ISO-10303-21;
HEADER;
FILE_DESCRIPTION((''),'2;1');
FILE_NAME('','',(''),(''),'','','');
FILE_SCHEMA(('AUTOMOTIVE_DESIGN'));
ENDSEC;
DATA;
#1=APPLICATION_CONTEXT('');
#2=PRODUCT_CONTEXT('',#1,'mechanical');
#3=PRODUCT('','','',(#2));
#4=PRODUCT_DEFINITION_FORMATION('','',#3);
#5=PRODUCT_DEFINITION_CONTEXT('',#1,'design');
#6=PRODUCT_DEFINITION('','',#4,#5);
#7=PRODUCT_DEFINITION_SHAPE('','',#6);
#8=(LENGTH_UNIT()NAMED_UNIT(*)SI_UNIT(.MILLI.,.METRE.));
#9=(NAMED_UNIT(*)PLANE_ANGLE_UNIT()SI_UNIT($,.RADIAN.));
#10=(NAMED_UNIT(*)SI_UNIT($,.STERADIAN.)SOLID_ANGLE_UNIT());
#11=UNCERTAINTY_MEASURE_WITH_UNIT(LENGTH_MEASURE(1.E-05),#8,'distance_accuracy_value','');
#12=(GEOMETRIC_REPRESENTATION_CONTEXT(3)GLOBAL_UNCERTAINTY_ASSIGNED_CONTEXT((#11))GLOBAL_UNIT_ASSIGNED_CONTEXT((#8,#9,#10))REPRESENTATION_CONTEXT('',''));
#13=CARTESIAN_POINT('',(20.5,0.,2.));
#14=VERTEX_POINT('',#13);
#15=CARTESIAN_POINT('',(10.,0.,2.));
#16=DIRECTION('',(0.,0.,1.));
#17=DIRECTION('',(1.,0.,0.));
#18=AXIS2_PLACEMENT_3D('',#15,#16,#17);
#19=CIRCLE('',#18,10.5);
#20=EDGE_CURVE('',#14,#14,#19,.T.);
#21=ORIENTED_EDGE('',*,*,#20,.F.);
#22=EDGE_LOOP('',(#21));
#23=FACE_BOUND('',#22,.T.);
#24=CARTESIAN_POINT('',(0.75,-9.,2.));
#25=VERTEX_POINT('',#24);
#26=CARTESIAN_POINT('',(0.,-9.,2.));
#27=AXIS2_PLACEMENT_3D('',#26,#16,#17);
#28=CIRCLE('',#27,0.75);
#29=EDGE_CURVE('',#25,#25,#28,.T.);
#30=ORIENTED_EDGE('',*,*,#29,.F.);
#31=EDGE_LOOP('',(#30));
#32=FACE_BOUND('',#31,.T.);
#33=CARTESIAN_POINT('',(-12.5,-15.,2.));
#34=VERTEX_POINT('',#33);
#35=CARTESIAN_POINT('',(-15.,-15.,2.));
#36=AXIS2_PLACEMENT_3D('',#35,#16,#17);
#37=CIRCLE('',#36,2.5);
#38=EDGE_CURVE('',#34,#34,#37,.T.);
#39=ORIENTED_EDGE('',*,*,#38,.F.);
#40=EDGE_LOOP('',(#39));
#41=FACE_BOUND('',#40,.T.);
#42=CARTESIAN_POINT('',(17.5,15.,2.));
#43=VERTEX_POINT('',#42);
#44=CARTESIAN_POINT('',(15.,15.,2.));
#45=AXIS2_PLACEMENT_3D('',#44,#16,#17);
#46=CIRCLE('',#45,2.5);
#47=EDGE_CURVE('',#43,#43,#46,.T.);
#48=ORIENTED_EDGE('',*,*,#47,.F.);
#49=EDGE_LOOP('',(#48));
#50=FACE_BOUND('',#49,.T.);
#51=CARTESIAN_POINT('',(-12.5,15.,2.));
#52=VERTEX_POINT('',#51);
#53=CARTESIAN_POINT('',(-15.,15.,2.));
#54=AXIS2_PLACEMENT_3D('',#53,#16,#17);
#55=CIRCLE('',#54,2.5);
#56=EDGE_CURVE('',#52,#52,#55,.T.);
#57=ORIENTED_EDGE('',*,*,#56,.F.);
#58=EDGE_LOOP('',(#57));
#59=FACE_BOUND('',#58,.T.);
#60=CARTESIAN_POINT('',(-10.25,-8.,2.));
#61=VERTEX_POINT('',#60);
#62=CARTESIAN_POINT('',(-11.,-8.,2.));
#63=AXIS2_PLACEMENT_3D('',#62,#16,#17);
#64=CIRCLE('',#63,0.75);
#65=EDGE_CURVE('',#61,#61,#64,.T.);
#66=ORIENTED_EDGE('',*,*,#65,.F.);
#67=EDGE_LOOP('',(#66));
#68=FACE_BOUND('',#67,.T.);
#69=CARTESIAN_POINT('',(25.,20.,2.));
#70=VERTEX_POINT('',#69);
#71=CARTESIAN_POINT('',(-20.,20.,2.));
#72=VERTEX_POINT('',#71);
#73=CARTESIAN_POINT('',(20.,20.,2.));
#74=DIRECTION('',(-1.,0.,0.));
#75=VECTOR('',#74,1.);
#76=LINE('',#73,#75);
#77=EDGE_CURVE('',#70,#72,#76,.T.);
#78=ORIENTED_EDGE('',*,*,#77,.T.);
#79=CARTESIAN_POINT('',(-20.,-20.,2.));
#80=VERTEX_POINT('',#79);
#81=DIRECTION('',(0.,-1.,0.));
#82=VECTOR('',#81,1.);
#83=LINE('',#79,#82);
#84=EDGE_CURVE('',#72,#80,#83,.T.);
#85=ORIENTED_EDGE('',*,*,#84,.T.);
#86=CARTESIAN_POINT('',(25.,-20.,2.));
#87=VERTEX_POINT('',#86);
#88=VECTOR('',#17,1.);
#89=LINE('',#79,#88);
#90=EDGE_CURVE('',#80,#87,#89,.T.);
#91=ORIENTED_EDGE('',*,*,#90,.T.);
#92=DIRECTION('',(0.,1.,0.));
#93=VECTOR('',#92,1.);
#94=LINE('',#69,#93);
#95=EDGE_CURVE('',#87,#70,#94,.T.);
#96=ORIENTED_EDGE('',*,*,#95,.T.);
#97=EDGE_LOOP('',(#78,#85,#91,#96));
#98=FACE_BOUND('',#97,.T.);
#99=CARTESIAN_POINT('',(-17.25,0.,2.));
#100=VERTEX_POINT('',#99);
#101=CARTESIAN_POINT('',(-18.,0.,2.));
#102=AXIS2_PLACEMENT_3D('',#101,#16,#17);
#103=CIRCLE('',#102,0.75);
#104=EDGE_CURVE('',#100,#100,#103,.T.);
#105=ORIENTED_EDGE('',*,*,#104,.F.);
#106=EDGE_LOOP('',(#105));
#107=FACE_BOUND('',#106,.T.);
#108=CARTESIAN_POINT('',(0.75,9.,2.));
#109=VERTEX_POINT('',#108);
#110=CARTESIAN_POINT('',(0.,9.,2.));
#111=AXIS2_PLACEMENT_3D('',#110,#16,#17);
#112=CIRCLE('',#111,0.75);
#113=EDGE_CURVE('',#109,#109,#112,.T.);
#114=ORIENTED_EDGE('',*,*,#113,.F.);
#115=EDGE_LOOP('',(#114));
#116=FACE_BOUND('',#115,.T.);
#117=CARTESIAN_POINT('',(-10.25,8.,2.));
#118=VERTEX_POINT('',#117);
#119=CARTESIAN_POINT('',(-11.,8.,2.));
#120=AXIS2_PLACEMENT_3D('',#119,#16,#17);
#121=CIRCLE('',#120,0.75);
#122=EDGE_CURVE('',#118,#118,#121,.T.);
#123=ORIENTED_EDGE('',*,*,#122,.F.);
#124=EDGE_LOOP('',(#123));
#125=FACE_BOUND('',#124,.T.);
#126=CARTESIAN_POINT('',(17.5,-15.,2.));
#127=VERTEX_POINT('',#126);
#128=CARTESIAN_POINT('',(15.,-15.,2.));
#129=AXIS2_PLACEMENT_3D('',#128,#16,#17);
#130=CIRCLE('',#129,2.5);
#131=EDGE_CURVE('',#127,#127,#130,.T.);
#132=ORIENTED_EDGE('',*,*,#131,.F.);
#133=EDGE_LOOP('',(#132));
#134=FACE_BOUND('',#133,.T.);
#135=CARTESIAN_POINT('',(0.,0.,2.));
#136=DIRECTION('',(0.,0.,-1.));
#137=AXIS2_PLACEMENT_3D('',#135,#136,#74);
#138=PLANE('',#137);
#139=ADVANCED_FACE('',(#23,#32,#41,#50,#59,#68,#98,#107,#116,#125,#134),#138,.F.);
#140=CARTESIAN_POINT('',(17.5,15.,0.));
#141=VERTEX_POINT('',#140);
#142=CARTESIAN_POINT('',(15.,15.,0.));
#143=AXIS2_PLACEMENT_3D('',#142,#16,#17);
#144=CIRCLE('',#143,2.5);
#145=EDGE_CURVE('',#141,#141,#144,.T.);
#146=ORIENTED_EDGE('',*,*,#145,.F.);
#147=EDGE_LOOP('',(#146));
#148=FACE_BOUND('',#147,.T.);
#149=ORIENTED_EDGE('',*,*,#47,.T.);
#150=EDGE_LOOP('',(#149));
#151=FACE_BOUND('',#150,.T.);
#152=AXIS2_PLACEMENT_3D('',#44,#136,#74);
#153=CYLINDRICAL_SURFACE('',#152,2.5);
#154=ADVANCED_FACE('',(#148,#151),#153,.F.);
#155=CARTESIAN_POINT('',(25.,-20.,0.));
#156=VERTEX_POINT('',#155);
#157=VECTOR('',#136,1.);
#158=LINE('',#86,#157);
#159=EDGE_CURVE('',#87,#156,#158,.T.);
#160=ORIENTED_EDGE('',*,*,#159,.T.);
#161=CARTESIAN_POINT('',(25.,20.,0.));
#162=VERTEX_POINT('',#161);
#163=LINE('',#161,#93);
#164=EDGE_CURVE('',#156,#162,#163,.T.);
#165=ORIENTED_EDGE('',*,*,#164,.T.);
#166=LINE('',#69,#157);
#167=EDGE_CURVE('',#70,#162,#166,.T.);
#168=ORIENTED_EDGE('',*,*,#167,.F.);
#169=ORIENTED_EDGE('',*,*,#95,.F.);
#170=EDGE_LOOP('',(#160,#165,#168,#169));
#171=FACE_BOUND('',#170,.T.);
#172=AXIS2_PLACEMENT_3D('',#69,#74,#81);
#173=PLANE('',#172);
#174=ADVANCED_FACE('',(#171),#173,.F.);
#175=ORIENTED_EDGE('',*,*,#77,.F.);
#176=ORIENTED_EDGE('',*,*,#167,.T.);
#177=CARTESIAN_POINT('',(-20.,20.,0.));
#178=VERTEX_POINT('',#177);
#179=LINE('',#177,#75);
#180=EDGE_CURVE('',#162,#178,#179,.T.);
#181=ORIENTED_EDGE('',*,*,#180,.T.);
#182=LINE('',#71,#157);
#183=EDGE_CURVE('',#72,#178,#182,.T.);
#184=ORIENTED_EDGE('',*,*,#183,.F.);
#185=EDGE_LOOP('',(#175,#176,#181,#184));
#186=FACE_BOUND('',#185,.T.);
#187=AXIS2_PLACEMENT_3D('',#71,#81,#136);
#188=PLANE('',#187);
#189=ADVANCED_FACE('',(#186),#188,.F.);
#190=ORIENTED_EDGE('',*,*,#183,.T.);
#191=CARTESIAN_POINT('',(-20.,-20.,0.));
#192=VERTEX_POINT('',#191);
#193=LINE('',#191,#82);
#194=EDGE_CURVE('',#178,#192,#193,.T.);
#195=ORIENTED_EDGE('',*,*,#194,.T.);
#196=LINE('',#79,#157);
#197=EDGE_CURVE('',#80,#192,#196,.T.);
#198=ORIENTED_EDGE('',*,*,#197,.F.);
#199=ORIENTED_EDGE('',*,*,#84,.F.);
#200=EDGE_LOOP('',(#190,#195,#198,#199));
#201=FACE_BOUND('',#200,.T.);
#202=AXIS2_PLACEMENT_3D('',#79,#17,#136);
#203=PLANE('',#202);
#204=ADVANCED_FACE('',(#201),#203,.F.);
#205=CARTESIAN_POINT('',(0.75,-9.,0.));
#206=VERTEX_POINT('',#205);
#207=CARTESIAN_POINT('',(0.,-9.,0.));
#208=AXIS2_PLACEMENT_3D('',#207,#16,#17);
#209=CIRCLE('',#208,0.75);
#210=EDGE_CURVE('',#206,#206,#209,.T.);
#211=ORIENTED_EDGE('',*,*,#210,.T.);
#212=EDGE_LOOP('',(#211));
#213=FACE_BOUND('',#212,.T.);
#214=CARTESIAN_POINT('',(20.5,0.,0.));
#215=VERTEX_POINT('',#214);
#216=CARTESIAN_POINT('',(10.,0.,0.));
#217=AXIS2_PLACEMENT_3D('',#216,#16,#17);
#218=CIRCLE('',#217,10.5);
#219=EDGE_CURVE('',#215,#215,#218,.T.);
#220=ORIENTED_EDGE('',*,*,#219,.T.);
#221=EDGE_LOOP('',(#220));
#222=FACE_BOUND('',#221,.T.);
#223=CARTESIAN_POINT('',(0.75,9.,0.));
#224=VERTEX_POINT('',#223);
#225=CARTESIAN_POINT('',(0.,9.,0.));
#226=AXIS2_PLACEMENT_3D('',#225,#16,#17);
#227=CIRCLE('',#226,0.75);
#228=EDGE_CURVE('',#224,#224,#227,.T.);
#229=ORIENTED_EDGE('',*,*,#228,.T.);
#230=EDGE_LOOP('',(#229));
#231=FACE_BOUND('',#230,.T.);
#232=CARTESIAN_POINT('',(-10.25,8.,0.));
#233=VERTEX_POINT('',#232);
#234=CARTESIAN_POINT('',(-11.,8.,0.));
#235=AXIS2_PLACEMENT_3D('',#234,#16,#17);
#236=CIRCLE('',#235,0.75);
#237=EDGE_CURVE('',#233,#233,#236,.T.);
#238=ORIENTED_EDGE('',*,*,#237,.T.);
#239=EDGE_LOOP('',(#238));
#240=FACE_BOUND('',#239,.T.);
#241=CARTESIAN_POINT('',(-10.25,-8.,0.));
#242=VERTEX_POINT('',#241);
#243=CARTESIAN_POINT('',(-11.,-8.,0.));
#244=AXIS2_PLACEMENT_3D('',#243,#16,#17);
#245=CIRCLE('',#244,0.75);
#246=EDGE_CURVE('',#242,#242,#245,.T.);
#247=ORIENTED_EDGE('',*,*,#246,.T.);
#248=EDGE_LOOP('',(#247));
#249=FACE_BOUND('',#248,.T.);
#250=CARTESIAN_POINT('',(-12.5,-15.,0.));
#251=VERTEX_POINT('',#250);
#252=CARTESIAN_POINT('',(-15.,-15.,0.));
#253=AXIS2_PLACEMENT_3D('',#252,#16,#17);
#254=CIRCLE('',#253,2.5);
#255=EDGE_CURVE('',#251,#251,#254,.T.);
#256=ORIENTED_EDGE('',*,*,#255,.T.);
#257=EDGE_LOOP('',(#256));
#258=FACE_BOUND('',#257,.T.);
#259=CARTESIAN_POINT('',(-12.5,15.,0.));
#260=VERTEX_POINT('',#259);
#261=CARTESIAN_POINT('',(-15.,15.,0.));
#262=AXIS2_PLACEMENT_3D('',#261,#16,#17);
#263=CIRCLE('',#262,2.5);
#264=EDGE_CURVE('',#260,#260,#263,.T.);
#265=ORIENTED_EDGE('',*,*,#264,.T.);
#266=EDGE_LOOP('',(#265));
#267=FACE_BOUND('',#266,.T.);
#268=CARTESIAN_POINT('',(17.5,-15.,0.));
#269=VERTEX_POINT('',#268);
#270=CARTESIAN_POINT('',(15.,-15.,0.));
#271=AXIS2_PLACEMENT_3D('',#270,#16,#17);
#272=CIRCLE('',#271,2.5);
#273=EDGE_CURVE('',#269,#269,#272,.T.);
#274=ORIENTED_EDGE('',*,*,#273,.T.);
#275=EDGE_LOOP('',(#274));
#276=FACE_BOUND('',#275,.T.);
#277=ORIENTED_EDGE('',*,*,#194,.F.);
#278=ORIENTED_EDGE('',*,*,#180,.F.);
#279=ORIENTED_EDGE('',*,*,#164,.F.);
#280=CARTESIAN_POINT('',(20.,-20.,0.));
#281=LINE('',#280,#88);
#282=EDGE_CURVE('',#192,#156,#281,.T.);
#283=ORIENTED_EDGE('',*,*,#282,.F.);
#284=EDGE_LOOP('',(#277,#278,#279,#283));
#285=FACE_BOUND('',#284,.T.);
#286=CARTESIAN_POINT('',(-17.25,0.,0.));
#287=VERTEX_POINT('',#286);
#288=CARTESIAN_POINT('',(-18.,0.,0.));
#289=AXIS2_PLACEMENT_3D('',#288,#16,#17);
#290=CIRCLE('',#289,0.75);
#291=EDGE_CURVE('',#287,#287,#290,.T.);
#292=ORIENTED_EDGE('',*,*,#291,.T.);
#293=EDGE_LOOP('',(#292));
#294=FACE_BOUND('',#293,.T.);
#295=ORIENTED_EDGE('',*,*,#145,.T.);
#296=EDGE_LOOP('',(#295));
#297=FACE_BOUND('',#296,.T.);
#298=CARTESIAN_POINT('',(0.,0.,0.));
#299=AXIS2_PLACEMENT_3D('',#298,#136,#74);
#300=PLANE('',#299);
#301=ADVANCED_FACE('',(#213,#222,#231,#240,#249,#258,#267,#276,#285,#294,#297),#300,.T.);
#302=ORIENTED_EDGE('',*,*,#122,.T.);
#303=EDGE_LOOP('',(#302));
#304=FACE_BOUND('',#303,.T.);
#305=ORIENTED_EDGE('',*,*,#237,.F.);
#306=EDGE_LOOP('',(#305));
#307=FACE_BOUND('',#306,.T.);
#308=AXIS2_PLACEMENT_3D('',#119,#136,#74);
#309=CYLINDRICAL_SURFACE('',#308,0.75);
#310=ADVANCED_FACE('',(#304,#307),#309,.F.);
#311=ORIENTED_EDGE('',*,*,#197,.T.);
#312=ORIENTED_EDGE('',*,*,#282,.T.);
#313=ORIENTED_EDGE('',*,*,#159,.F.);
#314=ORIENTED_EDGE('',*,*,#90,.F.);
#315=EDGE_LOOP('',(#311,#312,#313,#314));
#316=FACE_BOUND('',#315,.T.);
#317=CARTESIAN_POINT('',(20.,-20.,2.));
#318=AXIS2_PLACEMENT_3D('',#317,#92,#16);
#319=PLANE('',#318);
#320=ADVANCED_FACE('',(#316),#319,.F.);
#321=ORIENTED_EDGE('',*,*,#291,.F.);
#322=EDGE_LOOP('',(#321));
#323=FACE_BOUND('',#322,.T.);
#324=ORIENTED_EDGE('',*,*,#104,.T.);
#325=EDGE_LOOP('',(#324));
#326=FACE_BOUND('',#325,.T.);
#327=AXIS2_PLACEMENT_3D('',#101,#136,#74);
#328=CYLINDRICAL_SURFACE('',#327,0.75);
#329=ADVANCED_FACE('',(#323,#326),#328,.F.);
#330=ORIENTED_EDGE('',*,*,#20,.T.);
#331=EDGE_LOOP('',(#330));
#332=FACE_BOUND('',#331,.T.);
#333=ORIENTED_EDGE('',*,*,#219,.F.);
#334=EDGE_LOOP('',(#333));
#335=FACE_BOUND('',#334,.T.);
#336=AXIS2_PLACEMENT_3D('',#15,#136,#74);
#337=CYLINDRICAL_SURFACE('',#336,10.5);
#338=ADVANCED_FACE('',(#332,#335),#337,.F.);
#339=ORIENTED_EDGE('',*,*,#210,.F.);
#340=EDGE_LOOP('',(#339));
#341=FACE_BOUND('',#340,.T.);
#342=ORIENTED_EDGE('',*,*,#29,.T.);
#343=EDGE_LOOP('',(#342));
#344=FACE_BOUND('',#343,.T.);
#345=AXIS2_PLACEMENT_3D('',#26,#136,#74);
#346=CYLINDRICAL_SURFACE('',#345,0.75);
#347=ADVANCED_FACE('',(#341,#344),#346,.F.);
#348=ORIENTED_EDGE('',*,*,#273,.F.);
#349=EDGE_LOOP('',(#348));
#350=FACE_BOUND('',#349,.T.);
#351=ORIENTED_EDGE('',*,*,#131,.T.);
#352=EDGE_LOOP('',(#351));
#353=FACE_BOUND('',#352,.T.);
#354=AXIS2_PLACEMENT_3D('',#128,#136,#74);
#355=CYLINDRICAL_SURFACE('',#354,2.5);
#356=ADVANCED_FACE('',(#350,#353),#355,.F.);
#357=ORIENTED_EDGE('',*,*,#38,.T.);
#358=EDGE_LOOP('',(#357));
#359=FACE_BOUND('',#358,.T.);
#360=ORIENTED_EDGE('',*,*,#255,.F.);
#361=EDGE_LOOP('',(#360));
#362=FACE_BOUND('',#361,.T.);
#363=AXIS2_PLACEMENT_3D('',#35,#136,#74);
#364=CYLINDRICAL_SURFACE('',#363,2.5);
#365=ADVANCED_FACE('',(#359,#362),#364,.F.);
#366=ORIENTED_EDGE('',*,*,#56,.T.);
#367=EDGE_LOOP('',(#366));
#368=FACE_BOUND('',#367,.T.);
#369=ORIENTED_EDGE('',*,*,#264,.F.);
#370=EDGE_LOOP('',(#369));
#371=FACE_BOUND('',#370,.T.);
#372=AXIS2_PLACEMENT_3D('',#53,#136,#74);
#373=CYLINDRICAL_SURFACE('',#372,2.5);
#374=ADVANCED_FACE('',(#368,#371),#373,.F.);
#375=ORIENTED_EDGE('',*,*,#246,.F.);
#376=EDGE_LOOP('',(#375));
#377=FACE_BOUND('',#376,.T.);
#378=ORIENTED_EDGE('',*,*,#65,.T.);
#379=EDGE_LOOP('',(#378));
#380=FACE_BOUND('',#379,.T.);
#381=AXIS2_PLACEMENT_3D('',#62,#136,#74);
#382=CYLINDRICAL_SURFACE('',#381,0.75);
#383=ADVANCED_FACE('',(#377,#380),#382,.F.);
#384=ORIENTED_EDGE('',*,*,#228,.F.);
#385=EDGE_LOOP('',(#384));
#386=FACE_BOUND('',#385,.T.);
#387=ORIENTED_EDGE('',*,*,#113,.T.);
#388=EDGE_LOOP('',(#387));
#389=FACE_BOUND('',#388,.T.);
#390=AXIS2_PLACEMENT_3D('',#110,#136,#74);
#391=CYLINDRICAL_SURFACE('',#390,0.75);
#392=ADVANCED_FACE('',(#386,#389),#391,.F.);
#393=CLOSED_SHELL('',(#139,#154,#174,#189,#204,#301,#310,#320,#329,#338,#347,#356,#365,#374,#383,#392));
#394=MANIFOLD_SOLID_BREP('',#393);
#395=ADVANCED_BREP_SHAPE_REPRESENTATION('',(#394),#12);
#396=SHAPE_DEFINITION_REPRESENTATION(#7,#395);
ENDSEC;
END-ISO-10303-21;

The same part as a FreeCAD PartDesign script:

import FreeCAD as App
import Part
import Sketcher
Q = App.Units.Quantity


def add_polygon(sketch, points):
    """Adds a closed chain of lines whose ends are joined by coincident constraints."""
    first, n = sketch.GeometryCount, len(points)
    for a, b in zip(points, points[1:] + points[:1]):
        sketch.addGeometry(Part.LineSegment(App.Vector(*a, 0), App.Vector(*b, 0)), False)
    for i in range(n):
        sketch.addConstraint(Sketcher.Constraint("Coincident", first + i, 2, first + (i + 1) % n, 1))

doc = App.newDocument("Part")
body = doc.addObject("PartDesign::Body", "Body")

sketch1 = body.newObject("Sketcher::SketchObject", "Sketch")
sketch1.AttachmentSupport = (doc.getObject("XY_Plane"), [""])
sketch1.MapMode = "FlatFace"
add_polygon(sketch1, [(-20, -20), (25, -20), (25, 20), (-20, 20)])
sketch1.addGeometry(Part.Circle(App.Vector(-15, -15, 0), App.Vector(0, 0, 1), 2.5), False)
sketch1.addGeometry(Part.Circle(App.Vector(0, -9, 0), App.Vector(0, 0, 1), 0.8), False)
sketch1.addGeometry(Part.Circle(App.Vector(-11, -8, 0), App.Vector(0, 0, 1), 0.8), False)
sketch1.addGeometry(Part.Circle(App.Vector(15, -15, 0), App.Vector(0, 0, 1), 2.5), False)
sketch1.addGeometry(Part.Circle(App.Vector(-18, 0, 0), App.Vector(0, 0, 1), 0.8), False)
sketch1.addGeometry(Part.Circle(App.Vector(-11, 8, 0), App.Vector(0, 0, 1), 0.8), False)
sketch1.addGeometry(Part.Circle(App.Vector(-15, 15, 0), App.Vector(0, 0, 1), 2.5), False)
sketch1.addGeometry(Part.Circle(App.Vector(0, 9, 0), App.Vector(0, 0, 1), 0.8), False)
sketch1.addGeometry(Part.Circle(App.Vector(10, 0, 0), App.Vector(0, 0, 1), 10.5), False)
sketch1.addGeometry(Part.Circle(App.Vector(15, 15, 0), App.Vector(0, 0, 1), 2.5), False)
sketch1.addConstraint([
    Sketcher.Constraint("Horizontal", 0),
    Sketcher.Constraint("Vertical", 1),
    Sketcher.Constraint("Horizontal", 2),
    Sketcher.Constraint("Vertical", 3),
    Sketcher.Constraint("Equal", 5, 6),
    Sketcher.Constraint("Equal", 4, 7),
    Sketcher.Constraint("Equal", 6, 8),
    Sketcher.Constraint("Equal", 8, 9),
    Sketcher.Constraint("Equal", 7, 10),
    Sketcher.Constraint("Equal", 9, 11),
    Sketcher.Constraint("Equal", 10, 13),
    Sketcher.Constraint("Symmetric", 7, 3, 10, 3, -1, 1),
    Sketcher.Constraint("Symmetric", 5, 3, 11, 3, -1, 1),
    Sketcher.Constraint("Symmetric", 4, 3, 13, 3, -1, 1),
    Sketcher.Constraint("Symmetric", 4, 3, 7, 3, -2),
    Sketcher.Constraint("Symmetric", 6, 3, 9, 3, -1),
    Sketcher.Constraint("PointOnObject", 5, 3, -2),
    Sketcher.Constraint("PointOnObject", 8, 3, -1),
    Sketcher.Constraint("PointOnObject", 12, 3, -1),
    Sketcher.Constraint("Diameter", 4, Q("5 mm")),
    Sketcher.Constraint("Diameter", 12, Q("21 mm")),
    Sketcher.Constraint("Diameter", 5, Q("1.5 mm")),
    Sketcher.Constraint("DistanceX", 0, 1, 0, 2, Q("45 mm")),
    Sketcher.Constraint("DistanceY", 1, 1, 1, 2, Q("40 mm")),
    Sketcher.Constraint("DistanceX", 4, 3, -1, 1, Q("15 mm")),
    Sketcher.Constraint("DistanceY", 4, 3, -1, 1, Q("15 mm")),
    Sketcher.Constraint("DistanceY", 5, 3, -1, 1, Q("9 mm")),
    Sketcher.Constraint("DistanceX", 6, 3, -1, 1, Q("11 mm")),
    Sketcher.Constraint("DistanceY", 6, 3, -1, 1, Q("8 mm")),
    Sketcher.Constraint("DistanceX", 8, 3, -1, 1, Q("18 mm")),
    Sketcher.Constraint("DistanceX", -1, 1, 12, 3, Q("10 mm")),
    Sketcher.Constraint("DistanceX", -1, 1, 0, 2, Q("25 mm")),
    Sketcher.Constraint("DistanceY", 0, 2, -1, 1, Q("20 mm")),
])
pad1 = body.newObject("PartDesign::Pad", "Pad")
pad1.Profile = sketch1
pad1.Length = 2

doc.recompute()
